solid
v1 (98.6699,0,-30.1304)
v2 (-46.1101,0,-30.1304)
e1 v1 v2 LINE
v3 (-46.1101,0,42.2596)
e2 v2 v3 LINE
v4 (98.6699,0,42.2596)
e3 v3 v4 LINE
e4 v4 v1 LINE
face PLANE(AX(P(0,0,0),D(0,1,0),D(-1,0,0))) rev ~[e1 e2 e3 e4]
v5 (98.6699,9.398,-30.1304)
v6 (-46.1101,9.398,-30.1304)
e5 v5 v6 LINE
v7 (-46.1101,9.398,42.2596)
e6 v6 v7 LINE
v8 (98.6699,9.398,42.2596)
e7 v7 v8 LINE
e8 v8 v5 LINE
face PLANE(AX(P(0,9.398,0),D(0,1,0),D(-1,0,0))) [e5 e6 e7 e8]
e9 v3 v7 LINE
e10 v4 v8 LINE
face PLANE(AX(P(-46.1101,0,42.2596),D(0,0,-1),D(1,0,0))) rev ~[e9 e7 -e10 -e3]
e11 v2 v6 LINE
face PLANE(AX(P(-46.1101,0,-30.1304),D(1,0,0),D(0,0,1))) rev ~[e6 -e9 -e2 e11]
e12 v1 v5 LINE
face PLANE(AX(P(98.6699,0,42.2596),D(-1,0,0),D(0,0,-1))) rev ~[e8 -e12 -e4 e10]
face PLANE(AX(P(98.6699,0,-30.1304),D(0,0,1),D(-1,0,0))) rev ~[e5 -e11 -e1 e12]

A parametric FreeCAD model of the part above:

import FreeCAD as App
import Part
import Sketcher
from FreeCAD import Vector
Q = App.Units.Quantity


def add_polygon(sketch, points):
    """Adds a closed chain of lines whose ends are joined by coincident constraints."""
    first, n = sketch.GeometryCount, len(points)
    for a, b in zip(points, points[1:] + points[:1]):
        sketch.addGeometry(Part.LineSegment(App.Vector(*a, 0), App.Vector(*b, 0)), False)
    for i in range(n):
        sketch.addConstraint(Sketcher.Constraint("Coincident", first + i, 2, first + (i + 1) % n, 1))

doc = App.newDocument("Part")
params = doc.addObject("Spreadsheet::Sheet", "Params")
for row, (alias, value) in enumerate([
    ("sketch1_width", "5.7 in"),
    ("sketch1_height", "2.85 in"),
    ("pad1_length", "0.37 in"),
], start=1):
    params.set(f"A{row}", alias)
    params.set(f"B{row}", "=" + value)
    params.setAlias(f"B{row}", alias)

body = doc.addObject("PartDesign::Body", "Body")

# Sketch on XZ plane
sketch1 = body.newObject("Sketcher::SketchObject", "Sketch")
sketch1.AttachmentSupport = (doc.getObject("XZ_Plane"), [""])
sketch1.MapMode = "FlatFace"
add_polygon(sketch1, [(-46, -30), (-46, 42), (99, 42), (99, -30)])  # lines 0-3
sketch1.addConstraint([
    Sketcher.Constraint("Vertical", 0),
    Sketcher.Constraint("Horizontal", 1),
    Sketcher.Constraint("Vertical", 2),
    Sketcher.Constraint("Horizontal", 3),
    Sketcher.Constraint("DistanceX", 1, 1, 1, 2, Q("5.7 in")),
    Sketcher.Constraint("DistanceY", 0, 1, 0, 2, Q("2.85 in")),
    Sketcher.Constraint("DistanceX", 0, 2, -1, 1, 46.11),
    Sketcher.Constraint("DistanceY", -1, 1, 0, 2, 42.2596),
])
sketch1.setExpression("Constraints[8]", "Params.sketch1_width")
sketch1.setExpression("Constraints[9]", "Params.sketch1_height")
pad1 = body.newObject("PartDesign::Pad", "Pad")
pad1.Profile = sketch1
pad1.setExpression("Length", "Params.pad1_length")
pad1.Reversed = True

doc.recompute()
